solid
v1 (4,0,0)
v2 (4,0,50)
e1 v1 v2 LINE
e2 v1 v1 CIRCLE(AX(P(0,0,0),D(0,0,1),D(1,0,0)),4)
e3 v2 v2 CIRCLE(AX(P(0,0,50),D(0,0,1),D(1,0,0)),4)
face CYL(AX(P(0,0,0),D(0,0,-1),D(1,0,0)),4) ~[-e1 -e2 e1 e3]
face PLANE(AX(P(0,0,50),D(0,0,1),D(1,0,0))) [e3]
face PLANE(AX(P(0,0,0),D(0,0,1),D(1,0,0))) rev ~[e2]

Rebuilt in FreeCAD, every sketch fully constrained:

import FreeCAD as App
import Part
import Sketcher

doc = App.newDocument("Part")
params = doc.addObject("Spreadsheet::Sheet", "Params")
for row, (alias, value) in enumerate([
    ("sketch1_diameter", "8 mm"),
    ("pad1_length", "50 mm"),
], start=1):
    params.set(f"A{row}", alias)
    params.set(f"B{row}", "=" + value)
    params.setAlias(f"B{row}", alias)

body = doc.addObject("PartDesign::Body", "Body")

# Sketch on XY plane
sketch1 = body.newObject("Sketcher::SketchObject", "Sketch")
sketch1.AttachmentSupport = (doc.getObject("XY_Plane"), [""])
sketch1.MapMode = "FlatFace"
sketch1.addGeometry(Part.Circle(App.Vector(0, 0, 0), App.Vector(0, 0, 1), 4), False)
sketch1.addConstraint([
    Sketcher.Constraint("Coincident", 0, 3, -1, 1),
    Sketcher.Constraint("Diameter", 0, 8.0),
])
sketch1.setExpression("Constraints[1]", "Params.sketch1_diameter")
pad1 = body.newObject("PartDesign::Pad", "Pad")
pad1.Profile = sketch1
pad1.setExpression("Length", "Params.pad1_length")

doc.recompute()
